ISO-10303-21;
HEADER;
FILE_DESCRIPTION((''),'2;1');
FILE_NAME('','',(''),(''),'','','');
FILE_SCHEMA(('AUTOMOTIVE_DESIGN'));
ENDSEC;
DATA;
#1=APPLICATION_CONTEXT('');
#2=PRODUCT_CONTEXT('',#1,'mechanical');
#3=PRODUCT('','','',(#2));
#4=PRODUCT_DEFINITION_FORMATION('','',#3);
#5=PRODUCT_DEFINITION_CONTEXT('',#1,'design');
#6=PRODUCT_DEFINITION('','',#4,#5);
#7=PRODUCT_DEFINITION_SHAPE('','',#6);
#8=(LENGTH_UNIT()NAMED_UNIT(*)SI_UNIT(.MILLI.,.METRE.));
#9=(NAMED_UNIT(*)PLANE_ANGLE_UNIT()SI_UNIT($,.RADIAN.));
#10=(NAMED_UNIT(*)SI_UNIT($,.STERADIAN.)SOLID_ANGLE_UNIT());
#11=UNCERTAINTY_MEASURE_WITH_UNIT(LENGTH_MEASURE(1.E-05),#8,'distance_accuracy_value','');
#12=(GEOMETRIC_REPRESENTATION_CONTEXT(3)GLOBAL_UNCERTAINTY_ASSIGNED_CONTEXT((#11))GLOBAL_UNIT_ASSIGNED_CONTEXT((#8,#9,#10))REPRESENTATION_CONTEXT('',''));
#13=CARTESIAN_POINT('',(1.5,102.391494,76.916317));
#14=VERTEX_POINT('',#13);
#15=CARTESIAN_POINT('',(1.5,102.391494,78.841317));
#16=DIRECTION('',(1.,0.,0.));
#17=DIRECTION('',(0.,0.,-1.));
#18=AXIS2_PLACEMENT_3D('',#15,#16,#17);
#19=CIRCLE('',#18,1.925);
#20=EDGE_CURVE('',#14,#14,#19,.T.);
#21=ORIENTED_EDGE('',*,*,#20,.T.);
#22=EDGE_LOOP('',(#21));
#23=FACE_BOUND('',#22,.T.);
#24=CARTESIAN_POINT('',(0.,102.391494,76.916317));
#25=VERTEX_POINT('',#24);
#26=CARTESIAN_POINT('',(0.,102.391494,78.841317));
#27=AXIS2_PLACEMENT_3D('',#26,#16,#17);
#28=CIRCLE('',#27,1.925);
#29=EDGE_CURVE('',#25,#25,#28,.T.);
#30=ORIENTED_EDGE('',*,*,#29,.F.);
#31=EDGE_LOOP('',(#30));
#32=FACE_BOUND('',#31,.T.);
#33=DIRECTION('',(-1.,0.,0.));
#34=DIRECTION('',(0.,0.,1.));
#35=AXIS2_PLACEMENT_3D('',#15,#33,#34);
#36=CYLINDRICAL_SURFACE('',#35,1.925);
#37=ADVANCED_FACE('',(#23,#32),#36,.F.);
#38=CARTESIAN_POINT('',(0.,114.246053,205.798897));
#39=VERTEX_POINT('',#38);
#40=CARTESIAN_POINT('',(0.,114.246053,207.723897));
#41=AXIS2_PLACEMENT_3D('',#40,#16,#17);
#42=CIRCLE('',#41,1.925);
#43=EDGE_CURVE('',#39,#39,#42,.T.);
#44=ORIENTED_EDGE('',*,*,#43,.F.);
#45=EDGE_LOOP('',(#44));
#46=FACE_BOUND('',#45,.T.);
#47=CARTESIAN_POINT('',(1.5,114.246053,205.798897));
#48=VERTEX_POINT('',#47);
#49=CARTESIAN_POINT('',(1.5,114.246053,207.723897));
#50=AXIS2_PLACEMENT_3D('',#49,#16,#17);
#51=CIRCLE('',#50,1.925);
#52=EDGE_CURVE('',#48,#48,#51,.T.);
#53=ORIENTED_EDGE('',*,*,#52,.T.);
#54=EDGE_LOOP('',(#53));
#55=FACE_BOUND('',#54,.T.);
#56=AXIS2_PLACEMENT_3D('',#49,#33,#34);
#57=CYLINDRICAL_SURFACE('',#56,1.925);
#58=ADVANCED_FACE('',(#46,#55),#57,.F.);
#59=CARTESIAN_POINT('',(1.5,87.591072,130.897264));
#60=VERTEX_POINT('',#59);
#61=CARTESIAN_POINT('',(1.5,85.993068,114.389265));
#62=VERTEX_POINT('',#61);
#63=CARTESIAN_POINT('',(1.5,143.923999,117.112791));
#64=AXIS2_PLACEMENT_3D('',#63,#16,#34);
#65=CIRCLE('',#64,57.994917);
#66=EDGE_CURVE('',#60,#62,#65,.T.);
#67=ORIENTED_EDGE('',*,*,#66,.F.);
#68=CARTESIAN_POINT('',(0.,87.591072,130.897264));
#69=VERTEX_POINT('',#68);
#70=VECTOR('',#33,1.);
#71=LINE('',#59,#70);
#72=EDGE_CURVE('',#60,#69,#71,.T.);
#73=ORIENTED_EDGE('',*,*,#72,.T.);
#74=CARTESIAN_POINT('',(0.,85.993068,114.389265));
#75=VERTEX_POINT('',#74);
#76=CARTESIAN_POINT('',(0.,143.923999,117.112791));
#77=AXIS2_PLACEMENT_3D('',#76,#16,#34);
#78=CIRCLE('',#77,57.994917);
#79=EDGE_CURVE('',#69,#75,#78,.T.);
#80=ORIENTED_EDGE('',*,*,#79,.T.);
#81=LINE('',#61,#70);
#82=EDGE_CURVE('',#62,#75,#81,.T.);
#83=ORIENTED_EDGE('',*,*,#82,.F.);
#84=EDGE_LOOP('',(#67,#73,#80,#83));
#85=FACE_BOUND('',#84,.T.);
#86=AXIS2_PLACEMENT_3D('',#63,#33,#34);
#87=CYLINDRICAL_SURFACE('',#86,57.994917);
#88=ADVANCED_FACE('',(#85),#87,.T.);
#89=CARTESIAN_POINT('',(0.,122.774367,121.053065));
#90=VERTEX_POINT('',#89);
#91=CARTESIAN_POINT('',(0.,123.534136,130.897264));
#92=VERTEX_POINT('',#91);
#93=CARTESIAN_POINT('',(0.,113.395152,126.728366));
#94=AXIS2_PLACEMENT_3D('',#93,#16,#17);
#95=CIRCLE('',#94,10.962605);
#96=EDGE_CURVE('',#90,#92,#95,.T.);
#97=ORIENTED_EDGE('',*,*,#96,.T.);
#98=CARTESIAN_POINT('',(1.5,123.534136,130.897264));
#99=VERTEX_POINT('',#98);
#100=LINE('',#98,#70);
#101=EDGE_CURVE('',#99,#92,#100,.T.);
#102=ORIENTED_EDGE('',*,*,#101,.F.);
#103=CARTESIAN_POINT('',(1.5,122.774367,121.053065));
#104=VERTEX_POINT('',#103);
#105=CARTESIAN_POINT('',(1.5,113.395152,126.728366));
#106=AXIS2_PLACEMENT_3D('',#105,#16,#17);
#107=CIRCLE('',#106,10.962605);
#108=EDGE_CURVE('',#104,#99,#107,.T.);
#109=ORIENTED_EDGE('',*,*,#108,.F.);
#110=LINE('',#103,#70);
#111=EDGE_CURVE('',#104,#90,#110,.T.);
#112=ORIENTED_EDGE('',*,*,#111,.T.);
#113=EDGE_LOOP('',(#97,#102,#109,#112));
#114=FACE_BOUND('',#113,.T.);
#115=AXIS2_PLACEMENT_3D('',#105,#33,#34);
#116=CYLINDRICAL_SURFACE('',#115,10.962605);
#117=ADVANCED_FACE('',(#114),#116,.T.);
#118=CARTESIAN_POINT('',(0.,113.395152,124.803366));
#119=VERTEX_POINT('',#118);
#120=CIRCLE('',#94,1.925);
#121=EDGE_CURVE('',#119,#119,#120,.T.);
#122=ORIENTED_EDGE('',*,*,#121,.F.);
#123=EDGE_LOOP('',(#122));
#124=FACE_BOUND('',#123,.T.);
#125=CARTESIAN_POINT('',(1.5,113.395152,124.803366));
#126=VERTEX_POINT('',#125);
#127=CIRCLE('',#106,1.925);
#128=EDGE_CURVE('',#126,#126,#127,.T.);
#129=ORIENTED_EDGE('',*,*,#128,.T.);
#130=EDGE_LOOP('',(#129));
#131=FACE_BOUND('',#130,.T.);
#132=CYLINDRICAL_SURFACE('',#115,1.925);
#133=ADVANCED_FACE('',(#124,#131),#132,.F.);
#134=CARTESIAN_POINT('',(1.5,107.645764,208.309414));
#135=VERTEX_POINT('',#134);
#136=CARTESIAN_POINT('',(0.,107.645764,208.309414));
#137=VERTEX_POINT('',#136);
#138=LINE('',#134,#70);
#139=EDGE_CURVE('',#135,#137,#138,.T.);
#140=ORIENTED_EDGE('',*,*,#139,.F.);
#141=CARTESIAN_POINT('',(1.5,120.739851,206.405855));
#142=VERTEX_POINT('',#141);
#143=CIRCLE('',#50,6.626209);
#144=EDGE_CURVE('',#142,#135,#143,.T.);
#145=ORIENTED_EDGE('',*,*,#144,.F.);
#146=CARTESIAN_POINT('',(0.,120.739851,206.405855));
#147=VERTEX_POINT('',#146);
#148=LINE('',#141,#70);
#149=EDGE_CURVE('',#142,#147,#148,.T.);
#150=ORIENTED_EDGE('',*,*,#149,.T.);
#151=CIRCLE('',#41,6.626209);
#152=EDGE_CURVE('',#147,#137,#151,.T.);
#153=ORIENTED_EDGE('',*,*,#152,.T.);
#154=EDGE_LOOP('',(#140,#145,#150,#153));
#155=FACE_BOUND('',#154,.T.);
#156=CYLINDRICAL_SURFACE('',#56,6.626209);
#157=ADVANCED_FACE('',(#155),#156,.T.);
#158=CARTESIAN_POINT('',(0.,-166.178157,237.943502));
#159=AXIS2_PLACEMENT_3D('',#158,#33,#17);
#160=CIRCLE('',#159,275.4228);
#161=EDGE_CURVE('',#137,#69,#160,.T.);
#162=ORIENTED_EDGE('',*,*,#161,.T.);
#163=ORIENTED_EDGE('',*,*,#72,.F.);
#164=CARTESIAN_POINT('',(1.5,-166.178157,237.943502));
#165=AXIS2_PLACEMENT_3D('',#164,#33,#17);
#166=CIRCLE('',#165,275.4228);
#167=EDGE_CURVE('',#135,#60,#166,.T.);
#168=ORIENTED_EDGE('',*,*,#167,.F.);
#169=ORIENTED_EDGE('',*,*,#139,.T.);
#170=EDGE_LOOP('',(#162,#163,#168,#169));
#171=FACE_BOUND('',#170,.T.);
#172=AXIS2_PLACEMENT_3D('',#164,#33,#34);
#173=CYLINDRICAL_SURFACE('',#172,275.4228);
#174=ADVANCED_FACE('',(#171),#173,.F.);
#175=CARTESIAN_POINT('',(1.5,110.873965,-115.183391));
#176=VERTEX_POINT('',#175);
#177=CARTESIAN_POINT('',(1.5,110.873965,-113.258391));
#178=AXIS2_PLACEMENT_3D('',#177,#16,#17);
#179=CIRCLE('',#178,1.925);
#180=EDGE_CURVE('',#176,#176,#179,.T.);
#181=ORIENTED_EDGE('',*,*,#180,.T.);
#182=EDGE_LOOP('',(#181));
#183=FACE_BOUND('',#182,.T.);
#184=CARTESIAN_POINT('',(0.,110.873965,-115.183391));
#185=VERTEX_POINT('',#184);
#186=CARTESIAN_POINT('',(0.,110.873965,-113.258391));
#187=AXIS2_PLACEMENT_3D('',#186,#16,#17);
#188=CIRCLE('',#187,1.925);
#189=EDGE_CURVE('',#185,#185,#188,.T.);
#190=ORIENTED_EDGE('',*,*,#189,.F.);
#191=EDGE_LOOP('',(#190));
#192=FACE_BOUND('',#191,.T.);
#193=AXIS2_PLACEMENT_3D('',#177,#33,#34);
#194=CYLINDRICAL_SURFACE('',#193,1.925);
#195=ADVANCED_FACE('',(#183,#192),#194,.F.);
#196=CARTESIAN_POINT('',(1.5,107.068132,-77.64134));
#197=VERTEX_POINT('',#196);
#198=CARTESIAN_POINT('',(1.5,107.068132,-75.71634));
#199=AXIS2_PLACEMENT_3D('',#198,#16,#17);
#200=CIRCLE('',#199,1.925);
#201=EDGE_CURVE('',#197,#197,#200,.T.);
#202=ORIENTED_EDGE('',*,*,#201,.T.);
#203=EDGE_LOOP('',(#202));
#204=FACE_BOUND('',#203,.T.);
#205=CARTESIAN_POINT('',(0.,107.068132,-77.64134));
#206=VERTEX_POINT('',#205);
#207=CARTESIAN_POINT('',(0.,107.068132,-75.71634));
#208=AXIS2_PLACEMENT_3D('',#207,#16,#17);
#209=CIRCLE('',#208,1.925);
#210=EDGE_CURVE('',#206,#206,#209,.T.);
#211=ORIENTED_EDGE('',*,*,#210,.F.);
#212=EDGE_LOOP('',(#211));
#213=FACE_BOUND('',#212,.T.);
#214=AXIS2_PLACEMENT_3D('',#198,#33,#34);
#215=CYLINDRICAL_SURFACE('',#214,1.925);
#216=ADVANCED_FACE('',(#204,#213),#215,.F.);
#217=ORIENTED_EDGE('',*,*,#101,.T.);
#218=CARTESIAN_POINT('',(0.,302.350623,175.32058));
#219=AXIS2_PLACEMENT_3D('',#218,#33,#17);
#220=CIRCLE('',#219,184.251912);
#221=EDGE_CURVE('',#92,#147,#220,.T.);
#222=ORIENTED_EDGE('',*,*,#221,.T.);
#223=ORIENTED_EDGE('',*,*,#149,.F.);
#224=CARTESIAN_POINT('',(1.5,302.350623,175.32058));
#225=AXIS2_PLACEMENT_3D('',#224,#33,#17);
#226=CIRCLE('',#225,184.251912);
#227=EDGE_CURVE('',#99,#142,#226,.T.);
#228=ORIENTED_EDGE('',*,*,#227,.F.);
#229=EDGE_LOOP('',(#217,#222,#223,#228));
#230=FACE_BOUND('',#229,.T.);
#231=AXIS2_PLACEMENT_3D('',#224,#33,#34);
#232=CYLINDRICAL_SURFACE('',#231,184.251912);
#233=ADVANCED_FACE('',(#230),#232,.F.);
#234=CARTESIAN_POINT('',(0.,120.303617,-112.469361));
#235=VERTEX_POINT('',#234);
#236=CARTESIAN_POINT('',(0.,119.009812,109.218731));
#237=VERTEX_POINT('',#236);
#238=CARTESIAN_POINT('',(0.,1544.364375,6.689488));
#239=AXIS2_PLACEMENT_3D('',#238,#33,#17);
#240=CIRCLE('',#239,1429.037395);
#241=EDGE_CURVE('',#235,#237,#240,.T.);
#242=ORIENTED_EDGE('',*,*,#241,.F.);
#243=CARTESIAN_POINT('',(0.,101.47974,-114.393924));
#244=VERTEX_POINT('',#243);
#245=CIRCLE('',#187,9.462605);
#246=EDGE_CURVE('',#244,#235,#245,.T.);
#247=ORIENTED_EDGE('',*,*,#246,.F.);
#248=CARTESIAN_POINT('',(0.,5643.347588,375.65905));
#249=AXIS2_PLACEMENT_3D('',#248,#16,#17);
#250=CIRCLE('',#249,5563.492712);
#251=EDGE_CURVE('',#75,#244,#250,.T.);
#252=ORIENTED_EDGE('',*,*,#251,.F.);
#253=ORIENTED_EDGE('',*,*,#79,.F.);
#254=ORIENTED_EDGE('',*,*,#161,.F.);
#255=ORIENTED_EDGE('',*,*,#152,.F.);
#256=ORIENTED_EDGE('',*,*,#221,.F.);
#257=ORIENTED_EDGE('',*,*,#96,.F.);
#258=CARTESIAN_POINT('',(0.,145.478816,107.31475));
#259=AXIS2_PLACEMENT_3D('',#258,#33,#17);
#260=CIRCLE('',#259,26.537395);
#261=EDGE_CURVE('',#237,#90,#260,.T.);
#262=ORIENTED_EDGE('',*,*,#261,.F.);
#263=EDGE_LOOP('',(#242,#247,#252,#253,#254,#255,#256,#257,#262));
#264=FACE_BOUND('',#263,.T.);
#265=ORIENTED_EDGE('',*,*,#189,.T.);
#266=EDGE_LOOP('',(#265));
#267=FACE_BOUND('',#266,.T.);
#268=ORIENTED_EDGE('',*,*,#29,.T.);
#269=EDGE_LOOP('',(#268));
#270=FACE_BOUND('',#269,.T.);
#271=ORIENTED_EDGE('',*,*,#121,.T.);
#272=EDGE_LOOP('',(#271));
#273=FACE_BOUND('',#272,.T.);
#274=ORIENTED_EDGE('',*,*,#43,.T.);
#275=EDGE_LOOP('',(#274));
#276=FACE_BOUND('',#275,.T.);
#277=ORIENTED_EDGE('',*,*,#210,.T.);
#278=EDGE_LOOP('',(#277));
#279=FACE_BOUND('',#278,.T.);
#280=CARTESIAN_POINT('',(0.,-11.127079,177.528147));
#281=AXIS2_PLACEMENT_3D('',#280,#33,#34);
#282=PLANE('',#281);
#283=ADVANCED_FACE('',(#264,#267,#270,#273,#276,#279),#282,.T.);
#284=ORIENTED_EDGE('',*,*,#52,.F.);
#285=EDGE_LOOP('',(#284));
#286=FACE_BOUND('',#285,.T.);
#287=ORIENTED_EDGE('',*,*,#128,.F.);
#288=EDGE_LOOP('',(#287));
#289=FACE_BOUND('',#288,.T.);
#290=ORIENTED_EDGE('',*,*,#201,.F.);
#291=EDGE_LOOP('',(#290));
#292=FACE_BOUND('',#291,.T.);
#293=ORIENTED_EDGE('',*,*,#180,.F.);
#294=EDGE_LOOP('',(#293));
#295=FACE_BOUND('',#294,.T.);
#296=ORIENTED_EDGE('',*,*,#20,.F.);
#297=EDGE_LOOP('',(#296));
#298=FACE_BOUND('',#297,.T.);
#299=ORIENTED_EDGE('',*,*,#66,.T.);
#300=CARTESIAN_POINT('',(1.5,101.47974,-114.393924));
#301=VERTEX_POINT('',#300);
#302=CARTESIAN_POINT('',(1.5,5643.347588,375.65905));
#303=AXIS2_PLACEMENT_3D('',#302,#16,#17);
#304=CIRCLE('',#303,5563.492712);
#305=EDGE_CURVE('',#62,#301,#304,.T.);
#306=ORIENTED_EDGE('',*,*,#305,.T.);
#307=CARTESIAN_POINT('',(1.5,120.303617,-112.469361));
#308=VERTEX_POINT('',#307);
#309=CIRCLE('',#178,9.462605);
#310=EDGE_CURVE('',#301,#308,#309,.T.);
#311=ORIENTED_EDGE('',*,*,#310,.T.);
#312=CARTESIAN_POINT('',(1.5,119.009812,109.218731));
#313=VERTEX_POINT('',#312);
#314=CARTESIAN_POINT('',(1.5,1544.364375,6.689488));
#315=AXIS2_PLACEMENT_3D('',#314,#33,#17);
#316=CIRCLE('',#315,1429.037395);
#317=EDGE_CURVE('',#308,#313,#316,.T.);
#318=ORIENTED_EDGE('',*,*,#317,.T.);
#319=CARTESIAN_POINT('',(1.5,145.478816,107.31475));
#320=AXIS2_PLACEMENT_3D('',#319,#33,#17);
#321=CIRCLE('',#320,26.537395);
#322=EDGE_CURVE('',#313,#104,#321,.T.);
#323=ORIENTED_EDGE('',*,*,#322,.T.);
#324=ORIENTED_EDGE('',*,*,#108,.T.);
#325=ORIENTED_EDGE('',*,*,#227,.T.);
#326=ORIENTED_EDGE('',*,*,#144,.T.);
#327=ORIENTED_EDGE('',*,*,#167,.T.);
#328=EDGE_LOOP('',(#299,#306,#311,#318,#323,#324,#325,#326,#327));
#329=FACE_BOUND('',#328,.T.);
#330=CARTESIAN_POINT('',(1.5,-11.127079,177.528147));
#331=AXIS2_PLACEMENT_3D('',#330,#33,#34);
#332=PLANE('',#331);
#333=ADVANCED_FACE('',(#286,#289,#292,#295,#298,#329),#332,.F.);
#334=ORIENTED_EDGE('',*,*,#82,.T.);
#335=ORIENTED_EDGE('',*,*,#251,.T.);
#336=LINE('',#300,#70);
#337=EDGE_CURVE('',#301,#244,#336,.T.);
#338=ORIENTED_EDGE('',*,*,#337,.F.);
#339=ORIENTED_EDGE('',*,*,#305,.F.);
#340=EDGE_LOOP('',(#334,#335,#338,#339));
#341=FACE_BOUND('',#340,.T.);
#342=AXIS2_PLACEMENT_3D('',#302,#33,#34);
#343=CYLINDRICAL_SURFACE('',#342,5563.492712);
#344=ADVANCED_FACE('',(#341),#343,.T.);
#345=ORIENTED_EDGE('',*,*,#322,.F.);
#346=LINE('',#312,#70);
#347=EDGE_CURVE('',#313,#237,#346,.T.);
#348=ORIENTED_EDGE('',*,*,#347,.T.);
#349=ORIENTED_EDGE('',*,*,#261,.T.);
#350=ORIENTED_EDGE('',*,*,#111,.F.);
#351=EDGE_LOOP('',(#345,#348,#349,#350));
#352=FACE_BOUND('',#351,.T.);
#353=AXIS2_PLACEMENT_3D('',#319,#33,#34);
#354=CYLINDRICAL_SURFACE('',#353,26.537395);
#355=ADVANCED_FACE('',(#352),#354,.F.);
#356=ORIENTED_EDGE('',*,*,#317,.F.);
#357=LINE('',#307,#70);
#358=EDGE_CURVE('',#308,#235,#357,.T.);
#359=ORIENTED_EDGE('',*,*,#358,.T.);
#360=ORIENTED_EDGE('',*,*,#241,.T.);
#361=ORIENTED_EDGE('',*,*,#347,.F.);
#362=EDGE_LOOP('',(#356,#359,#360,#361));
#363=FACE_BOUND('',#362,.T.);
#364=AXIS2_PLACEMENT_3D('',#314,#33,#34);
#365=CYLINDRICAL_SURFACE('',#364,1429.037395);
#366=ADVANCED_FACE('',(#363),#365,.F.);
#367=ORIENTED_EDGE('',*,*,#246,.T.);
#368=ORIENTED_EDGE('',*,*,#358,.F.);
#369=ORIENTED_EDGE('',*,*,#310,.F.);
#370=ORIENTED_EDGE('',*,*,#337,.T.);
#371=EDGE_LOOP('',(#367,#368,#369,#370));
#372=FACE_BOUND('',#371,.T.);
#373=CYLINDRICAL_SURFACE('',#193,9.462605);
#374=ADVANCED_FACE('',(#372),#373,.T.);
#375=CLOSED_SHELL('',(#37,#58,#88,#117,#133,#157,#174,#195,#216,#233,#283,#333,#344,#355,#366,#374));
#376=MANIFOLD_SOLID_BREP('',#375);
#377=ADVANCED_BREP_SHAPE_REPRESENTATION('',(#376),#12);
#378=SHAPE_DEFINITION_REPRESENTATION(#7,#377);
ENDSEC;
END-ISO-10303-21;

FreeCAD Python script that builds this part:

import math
import FreeCAD as App
import Part
import Sketcher
from FreeCAD import Vector

doc = App.newDocument("Part")
body = doc.addObject("PartDesign::Body", "Body")

sketch1 = doc.addObject("Sketcher::SketchObject", "Sketch")
body.addObject(sketch1)
sketch1.AttachmentSupport = (doc.YZ_Plane, [""])
sketch1.MapMode = "FlatFace"
sketch1.addGeometry([
    Part.ArcOfCircle(Part.Circle(Vector(-166.178157, 237.943502, 0), Vector(0, 0, 1), 275.4228), math.radians(-22.87124), math.radians(-6.17669)),
    Part.ArcOfCircle(Part.Circle(Vector(143.923999, 117.112791, 0), Vector(0, 0, 1), 57.994917), math.radians(166.250103), math.radians(182.691684)),
    Part.ArcOfCircle(Part.Circle(Vector(5643.347589, 375.65905, 0), Vector(0, 0, 1), 5563.492714), math.radians(-177.308316), math.radians(-174.946627)),
    Part.ArcOfCircle(Part.Circle(Vector(110.873965, -113.258391, 0), Vector(0, 0, 1), 9.462605), math.radians(-173.107773), math.radians(4.783105)),
    Part.ArcOfCircle(Part.Circle(Vector(1544.364375, 6.689488, 0), Vector(0, 0, 1), 1429.037395), math.radians(175.885661), math.radians(184.783105)),
    Part.ArcOfCircle(Part.Circle(Vector(145.478817, 107.31475, 0), Vector(0, 0, 1), 26.537395), math.radians(148.822142), math.radians(175.885661)),
    Part.ArcOfCircle(Part.Circle(Vector(113.395152, 126.728366, 0), Vector(0, 0, 1), 10.962605), math.radians(-31.177858), math.radians(22.351244)),
    Part.ArcOfCircle(Part.Circle(Vector(302.350623, 175.32058, 0), Vector(0, 0, 1), 184.251912), math.radians(170.287133), math.radians(193.95153)),
    Part.ArcOfCircle(Part.Circle(Vector(114.246053, 207.723897, 0), Vector(0, 0, 1), 6.626209), math.radians(-11.473424), math.radians(174.930508)),
    Part.Circle(Vector(107.068132, -75.71634, 0), Vector(0, 0, 1), 1.925),
    Part.Circle(Vector(102.391494, 78.841317, 0), Vector(0, 0, 1), 1.925),
    Part.Circle(Vector(110.873965, -113.258391, 0), Vector(0, 0, 1), 1.925),
    Part.Circle(Vector(113.395152, 126.728366, 0), Vector(0, 0, 1), 1.925),
    Part.Circle(Vector(114.246053, 207.723897, 0), Vector(0, 0, 1), 1.925),
], False)
sketch1.addConstraint([
    Sketcher.Constraint("Coincident", 0, 1, 1, 1),
    Sketcher.Constraint("Tangent", 1, 2, 2, 1),
    Sketcher.Constraint("Coincident", 2, 2, 3, 1),
    Sketcher.Constraint("Tangent", 3, 2, 4, 2),
    Sketcher.Constraint("Tangent", 4, 1, 5, 2),
    Sketcher.Constraint("Tangent", 5, 1, 6, 1),
    Sketcher.Constraint("Coincident", 6, 2, 7, 2),
    Sketcher.Constraint("Coincident", 7, 1, 8, 1),
    Sketcher.Constraint("Coincident", 8, 2, 0, 2),
    Sketcher.Constraint("Coincident", 11, 3, 3, 3),
    Sketcher.Constraint("Coincident", 12, 3, 6, 3),
    Sketcher.Constraint("Coincident", 13, 3, 8, 3),
    Sketcher.Constraint("Equal", 9, 10),
    Sketcher.Constraint("Equal", 10, 11),
    Sketcher.Constraint("Equal", 11, 12),
    Sketcher.Constraint("Equal", 12, 13),
    Sketcher.Constraint("Horizontal", 0, 1, 6, 2),
    Sketcher.Constraint("Diameter", 9, 3.85),
    Sketcher.Constraint("Radius", 0, 275.4228),
    Sketcher.Constraint("Radius", 7, 184.251912),
    Sketcher.Constraint("Radius", 8, 6.626209),
    Sketcher.Constraint("DistanceX", -1, 1, 1, 3, 143.923999),
    Sketcher.Constraint("Radius", 1, 57.994917),
    Sketcher.Constraint("Radius", 2, 5563.492714),
    Sketcher.Constraint("Radius", 3, 9.462605),
    Sketcher.Constraint("Radius", 4, 1429.037395),
    Sketcher.Constraint("Radius", 5, 26.537395),
    Sketcher.Constraint("Radius", 6, 10.962605),
    Sketcher.Constraint("DistanceY", 1, 2, 0, 1, 16.507999),
    Sketcher.Constraint("DistanceY", 5, 3, 2, 3, 268.3443),
    Sketcher.Constraint("DistanceX", 6, 3, 8, 3, 0.850901),
    Sketcher.Constraint("DistanceY", 1, 2, 12, 3, 12.339101),
    Sketcher.Constraint("DistanceY", 5, 1, 6, 3, 5.675301),
    Sketcher.Constraint("DistanceX", 6, 3, 7, 1, 7.344699),
    Sketcher.Constraint("DistanceY", -1, 1, 1, 3, 117.112791),
    Sketcher.Constraint("DistanceY", 3, 3, -1, 1, 113.258391),
    Sketcher.Constraint("DistanceY", -1, 1, 7, 3, 175.32058),
    Sketcher.Constraint("DistanceY", 9, 3, -1, 1, 75.71634),
    Sketcher.Constraint("DistanceX", -1, 1, 7, 1, 120.739851),
    Sketcher.Constraint("DistanceY", 1, 3, 0, 3, 120.830711),
    Sketcher.Constraint("DistanceX", 3, 3, 4, 3, 1433.49041),
    Sketcher.Constraint("DistanceX", 9, 3, 6, 3, 6.32702),
    Sketcher.Constraint("DistanceX", 10, 3, 6, 3, 11.003658),
    Sketcher.Constraint("DistanceY", 10, 3, 6, 3, 47.887049),
])
pad1 = doc.addObject("PartDesign::Pad", "Pad")
body.addObject(pad1)
pad1.Profile = sketch1
pad1.Length = 1.5

doc.recompute()
